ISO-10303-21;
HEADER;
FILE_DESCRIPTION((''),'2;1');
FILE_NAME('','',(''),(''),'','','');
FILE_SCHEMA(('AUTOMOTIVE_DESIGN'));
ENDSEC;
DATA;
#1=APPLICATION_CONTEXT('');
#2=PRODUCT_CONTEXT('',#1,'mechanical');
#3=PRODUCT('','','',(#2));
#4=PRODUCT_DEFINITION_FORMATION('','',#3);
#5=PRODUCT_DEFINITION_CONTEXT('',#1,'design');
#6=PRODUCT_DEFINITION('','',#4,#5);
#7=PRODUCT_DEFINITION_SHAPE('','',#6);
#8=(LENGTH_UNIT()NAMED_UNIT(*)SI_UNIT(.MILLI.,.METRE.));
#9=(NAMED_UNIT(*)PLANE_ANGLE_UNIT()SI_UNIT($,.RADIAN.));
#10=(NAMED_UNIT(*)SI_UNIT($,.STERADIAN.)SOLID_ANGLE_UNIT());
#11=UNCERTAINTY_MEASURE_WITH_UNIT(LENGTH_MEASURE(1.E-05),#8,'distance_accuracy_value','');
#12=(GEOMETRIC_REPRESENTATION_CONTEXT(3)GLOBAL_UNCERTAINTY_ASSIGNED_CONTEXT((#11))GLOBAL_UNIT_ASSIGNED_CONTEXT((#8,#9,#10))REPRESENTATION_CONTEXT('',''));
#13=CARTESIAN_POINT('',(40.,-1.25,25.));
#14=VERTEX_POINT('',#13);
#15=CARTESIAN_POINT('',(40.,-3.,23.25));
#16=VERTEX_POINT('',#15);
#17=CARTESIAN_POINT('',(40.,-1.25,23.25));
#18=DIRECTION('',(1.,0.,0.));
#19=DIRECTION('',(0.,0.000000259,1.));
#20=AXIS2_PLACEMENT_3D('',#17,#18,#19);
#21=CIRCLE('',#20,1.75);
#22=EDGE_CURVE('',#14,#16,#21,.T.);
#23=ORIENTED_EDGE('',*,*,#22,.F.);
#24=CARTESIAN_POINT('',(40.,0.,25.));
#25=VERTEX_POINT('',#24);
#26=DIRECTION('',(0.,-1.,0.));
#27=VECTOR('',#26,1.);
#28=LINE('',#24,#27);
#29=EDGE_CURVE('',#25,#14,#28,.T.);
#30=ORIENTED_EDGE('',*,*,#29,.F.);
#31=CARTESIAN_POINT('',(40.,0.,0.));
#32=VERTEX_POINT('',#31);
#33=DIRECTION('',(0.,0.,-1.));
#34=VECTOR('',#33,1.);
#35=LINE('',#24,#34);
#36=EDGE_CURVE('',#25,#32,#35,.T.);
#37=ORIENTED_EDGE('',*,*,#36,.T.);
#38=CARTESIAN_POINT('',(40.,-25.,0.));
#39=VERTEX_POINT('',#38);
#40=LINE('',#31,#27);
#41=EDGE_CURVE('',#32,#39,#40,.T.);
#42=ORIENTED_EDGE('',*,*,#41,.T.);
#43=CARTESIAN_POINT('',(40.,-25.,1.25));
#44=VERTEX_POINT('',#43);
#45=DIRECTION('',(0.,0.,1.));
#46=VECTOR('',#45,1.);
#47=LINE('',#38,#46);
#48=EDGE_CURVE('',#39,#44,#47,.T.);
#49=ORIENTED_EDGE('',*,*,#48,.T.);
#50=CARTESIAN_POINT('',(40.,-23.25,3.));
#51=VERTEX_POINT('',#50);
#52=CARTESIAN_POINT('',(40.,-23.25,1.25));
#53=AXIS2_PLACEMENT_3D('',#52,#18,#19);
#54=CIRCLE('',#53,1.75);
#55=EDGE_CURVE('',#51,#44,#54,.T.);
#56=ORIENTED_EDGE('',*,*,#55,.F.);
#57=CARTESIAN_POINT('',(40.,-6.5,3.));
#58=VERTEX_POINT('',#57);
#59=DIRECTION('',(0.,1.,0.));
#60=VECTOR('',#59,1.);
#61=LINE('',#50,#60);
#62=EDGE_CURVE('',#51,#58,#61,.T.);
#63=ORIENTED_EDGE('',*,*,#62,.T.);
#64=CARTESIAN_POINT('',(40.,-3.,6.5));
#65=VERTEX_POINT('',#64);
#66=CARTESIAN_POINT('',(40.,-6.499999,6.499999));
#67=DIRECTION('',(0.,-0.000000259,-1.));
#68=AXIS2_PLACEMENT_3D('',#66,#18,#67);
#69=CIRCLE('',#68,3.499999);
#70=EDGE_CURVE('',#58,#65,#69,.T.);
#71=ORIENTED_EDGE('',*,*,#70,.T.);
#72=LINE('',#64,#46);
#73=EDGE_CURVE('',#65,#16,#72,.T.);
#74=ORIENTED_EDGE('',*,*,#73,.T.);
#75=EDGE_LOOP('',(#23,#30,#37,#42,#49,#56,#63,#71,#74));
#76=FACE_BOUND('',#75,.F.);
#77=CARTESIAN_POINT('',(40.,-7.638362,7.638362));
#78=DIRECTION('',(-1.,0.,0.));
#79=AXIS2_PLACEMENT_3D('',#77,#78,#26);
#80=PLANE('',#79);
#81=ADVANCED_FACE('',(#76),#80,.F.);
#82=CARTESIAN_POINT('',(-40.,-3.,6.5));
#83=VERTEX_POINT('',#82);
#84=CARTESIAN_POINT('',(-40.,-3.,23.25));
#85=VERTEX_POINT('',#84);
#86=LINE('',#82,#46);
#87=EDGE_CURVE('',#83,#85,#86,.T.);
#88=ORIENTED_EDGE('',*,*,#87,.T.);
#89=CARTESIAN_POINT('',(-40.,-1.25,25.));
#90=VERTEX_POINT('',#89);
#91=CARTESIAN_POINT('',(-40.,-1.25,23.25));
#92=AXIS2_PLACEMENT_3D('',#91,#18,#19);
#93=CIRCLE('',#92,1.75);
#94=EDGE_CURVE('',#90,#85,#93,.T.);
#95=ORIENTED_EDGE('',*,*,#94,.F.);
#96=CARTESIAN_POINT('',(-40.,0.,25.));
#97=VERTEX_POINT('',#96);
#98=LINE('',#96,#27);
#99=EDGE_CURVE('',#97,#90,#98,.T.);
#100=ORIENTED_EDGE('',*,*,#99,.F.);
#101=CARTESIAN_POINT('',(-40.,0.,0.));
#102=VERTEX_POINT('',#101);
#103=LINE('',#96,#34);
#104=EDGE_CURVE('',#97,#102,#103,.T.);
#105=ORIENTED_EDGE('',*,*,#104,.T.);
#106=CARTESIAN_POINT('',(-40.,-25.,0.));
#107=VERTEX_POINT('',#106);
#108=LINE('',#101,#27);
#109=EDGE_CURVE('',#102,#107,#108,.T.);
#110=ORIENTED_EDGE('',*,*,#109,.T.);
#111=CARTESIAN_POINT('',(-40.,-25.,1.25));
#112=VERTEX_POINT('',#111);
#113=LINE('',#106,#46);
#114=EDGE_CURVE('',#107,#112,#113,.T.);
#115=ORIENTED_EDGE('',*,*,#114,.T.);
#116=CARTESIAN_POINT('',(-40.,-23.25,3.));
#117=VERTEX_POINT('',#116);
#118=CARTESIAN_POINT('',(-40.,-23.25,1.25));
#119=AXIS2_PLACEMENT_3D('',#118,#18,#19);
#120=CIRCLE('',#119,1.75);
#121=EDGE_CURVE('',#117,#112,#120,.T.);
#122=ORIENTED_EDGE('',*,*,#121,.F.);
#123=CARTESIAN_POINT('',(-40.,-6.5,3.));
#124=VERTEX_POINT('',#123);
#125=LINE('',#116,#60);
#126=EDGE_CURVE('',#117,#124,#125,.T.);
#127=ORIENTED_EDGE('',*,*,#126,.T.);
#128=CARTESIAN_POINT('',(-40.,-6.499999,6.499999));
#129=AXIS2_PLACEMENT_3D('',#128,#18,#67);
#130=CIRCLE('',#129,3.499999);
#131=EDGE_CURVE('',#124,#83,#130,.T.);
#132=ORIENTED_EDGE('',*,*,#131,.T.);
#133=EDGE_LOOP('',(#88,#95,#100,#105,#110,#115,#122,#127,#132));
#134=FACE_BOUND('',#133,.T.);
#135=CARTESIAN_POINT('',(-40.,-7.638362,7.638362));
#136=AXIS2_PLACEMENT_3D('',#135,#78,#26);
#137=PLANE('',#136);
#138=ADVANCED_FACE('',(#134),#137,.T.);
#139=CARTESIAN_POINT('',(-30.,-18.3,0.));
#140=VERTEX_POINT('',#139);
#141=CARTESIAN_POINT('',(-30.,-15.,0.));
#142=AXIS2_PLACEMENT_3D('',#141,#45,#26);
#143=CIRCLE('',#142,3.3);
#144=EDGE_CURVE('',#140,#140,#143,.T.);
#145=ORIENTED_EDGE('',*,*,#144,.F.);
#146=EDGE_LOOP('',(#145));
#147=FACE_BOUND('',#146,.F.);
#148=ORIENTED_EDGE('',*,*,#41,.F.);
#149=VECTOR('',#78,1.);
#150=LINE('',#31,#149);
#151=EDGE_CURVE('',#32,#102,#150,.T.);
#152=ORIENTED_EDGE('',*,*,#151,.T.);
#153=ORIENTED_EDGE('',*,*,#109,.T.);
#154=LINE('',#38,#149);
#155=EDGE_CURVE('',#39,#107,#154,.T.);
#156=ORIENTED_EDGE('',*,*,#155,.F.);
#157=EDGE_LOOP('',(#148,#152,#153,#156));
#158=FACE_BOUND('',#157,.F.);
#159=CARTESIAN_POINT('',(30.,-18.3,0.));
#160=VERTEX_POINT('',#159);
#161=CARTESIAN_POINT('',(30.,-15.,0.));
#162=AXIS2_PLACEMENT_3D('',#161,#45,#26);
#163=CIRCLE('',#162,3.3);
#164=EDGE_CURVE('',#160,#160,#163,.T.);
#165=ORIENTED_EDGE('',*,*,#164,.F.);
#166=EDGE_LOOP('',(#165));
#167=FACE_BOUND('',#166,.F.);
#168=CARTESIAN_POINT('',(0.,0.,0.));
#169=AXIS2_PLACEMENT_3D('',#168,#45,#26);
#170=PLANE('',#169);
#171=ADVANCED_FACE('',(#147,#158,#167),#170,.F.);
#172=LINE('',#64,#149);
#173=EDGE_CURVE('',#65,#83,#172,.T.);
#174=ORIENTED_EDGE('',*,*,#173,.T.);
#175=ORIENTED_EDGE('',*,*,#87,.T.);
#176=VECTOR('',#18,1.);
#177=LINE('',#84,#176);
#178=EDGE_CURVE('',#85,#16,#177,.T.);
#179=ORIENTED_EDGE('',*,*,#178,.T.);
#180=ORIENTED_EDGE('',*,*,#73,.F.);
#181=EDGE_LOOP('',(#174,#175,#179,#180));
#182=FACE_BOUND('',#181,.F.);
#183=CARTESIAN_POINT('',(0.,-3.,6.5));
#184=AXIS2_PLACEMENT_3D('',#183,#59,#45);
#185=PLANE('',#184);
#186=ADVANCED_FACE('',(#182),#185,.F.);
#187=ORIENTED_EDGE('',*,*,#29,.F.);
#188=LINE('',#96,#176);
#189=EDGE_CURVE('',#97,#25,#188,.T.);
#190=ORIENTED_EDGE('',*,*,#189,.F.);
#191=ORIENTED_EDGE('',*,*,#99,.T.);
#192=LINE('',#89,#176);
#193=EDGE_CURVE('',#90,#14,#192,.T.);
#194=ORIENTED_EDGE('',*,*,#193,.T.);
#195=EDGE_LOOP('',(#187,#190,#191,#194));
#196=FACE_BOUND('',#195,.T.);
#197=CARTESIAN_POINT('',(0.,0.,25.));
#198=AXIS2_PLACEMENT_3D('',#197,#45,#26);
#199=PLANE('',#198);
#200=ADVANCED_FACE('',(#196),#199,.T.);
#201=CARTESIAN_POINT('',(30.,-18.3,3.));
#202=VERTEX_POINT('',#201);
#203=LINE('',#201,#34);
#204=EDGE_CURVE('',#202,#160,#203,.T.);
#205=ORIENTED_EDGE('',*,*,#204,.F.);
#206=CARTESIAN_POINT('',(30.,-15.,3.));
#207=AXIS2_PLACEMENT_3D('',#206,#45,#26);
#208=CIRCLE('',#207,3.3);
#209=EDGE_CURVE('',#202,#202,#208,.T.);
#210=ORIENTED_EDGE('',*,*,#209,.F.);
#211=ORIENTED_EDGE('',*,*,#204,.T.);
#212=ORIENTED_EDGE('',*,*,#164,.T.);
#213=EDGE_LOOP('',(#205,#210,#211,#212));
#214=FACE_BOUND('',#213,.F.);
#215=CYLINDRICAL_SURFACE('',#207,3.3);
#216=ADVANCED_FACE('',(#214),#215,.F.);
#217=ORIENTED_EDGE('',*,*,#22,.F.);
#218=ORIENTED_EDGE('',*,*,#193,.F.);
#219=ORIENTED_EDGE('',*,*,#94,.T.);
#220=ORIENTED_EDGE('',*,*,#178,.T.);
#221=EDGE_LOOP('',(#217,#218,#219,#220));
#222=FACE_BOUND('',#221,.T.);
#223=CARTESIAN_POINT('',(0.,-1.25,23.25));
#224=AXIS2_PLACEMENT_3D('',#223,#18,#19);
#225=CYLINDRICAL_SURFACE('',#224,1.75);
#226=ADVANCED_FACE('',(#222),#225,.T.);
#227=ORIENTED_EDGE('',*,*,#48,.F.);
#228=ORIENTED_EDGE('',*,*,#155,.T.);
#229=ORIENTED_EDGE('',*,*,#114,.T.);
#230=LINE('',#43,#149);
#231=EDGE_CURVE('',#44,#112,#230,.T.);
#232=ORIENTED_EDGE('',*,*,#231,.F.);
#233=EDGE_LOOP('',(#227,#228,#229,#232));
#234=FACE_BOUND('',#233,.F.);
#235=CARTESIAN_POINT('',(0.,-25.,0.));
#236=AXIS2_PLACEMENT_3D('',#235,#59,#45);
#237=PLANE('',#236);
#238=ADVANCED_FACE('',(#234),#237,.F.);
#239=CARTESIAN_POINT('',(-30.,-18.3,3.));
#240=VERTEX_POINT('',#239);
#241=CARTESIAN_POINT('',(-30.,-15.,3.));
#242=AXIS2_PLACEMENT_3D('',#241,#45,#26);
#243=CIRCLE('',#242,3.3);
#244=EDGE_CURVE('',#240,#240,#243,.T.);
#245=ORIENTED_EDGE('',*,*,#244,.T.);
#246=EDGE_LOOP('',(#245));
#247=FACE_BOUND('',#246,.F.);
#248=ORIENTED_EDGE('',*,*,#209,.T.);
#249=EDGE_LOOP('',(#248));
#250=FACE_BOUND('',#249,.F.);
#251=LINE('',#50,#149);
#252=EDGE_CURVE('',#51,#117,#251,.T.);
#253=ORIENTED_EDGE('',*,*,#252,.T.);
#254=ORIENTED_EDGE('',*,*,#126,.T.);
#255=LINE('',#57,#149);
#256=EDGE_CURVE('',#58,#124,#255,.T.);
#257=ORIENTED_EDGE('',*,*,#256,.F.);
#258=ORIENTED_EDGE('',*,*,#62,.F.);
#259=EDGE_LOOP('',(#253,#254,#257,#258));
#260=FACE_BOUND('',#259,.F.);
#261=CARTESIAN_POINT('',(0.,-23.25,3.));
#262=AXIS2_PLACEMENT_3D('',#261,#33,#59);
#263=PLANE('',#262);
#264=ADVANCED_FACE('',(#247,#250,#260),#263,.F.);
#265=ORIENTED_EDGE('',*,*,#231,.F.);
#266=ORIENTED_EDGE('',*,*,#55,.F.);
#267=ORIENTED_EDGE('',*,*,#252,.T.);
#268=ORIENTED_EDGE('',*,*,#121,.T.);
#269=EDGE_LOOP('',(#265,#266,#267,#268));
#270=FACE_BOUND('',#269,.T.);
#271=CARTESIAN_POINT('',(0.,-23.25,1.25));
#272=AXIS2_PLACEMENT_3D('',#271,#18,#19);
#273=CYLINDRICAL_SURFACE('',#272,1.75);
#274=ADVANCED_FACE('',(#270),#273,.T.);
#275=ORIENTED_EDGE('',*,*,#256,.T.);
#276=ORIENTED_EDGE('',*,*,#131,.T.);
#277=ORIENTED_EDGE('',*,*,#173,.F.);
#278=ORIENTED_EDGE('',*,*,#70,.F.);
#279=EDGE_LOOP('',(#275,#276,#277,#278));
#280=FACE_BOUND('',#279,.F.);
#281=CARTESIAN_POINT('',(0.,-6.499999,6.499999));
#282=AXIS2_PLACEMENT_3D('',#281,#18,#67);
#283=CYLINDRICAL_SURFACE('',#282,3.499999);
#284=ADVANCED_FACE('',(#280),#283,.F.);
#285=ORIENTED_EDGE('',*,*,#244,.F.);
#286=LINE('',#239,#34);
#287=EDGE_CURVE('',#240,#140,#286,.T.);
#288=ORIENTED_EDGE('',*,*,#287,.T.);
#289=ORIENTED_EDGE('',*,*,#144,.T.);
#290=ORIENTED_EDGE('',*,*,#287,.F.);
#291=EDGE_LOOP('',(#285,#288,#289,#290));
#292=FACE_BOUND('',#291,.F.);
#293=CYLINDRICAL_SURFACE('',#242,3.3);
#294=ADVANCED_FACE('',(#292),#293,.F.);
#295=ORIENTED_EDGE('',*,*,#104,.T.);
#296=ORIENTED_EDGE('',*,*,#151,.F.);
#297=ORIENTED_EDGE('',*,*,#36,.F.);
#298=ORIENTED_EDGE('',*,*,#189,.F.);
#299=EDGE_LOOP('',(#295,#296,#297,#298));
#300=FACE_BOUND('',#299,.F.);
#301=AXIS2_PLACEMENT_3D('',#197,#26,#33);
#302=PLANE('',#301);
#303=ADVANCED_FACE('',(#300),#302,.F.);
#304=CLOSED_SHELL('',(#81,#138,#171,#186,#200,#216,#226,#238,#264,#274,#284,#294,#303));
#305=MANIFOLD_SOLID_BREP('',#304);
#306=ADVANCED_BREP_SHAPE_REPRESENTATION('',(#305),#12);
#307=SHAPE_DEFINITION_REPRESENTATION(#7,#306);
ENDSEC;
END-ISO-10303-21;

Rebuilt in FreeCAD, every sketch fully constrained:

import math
import FreeCAD as App
import Part
import Sketcher

doc = App.newDocument("Part")
body = doc.addObject("PartDesign::Body", "Body")

sketch1 = body.newObject("Sketcher::SketchObject", "Sketch")
sketch1.AttachmentSupport = (doc.getObject("YZ_Plane"), [""])
sketch1.MapMode = "FlatFace"
sketch1.addGeometry([
    Part.LineSegment(App.Vector(0, 0, 0), App.Vector(0, 25, 0)),
    Part.LineSegment(App.Vector(0, 25, 0), App.Vector(-1.25, 25, 0)),
    Part.ArcOfCircle(Part.Circle(App.Vector(-1.25, 23.25, 0), App.Vector(0, 0, 1), 1.75), math.radians(89.999985), math.radians(180.000015)),
    Part.LineSegment(App.Vector(-3, 23.25, 0), App.Vector(-3, 6.5, 0)),
    Part.ArcOfCircle(Part.Circle(App.Vector(-6.499999, 6.499999, 0), App.Vector(0, 0, 1), 3.499999), math.radians(-90.000015), math.radians(0.000015)),
    Part.LineSegment(App.Vector(-6.5, 3, 0), App.Vector(-23.25, 3, 0)),
    Part.ArcOfCircle(Part.Circle(App.Vector(-23.25, 1.25, 0), App.Vector(0, 0, 1), 1.75), math.radians(89.999985), math.radians(180.000015)),
    Part.LineSegment(App.Vector(-25, 1.25, 0), App.Vector(-25, 0, 0)),
    Part.LineSegment(App.Vector(-25, 0, 0), App.Vector(0, 0, 0)),
], False)
sketch1.addConstraint([
    Sketcher.Constraint("Coincident", 0, 2, 1, 1),
    Sketcher.Constraint("Tangent", 1, 2, 2, 1),
    Sketcher.Constraint("Tangent", 2, 2, 3, 1),
    Sketcher.Constraint("Tangent", 3, 2, 4, 2),
    Sketcher.Constraint("Tangent", 4, 1, 5, 1),
    Sketcher.Constraint("Tangent", 5, 2, 6, 1),
    Sketcher.Constraint("Tangent", 6, 2, 7, 1),
    Sketcher.Constraint("Coincident", 7, 2, 8, 1),
    Sketcher.Constraint("Coincident", 8, 2, 0, 1),
    Sketcher.Constraint("Vertical", 0),
    Sketcher.Constraint("Horizontal", 1),
    Sketcher.Constraint("Vertical", 3),
    Sketcher.Constraint("Horizontal", 5),
    Sketcher.Constraint("Vertical", 7),
    Sketcher.Constraint("Horizontal", 8),
    Sketcher.Constraint("Coincident", 8, 2, -1, 1),
    Sketcher.Constraint("Equal", 2, 6),
    Sketcher.Constraint("Equal", 8, 0),
    Sketcher.Constraint("Equal", 5, 3),
    Sketcher.Constraint("Radius", 4, 3.499999),
    Sketcher.Constraint("DistanceX", 8, 1, 8, 2, 25.0),
    Sketcher.Constraint("Radius", 2, 1.75),
    Sketcher.Constraint("DistanceX", 2, 2, -1, 1, 3.0),
])
pad1 = body.newObject("PartDesign::Pad", "Pad")
pad1.Profile = sketch1
pad1.Length = 80
pad1.Midplane = True

sketch2 = body.newObject("Sketcher::SketchObject", "Sketch001")
sketch2.AttachmentSupport = (doc.getObject("XY_Plane"), [""])
sketch2.MapMode = "FlatFace"
sketch2.AttachmentOffset = App.Placement(App.Vector(0, 0, 3), App.Rotation())
sketch2.addGeometry([
    Part.Circle(App.Vector(30, -15, 0), App.Vector(0, 0, 1), 3.3),
    Part.Circle(App.Vector(-30, -15, 0), App.Vector(0, 0, 1), 3.3),
], False)
sketch2.addConstraint([
    Sketcher.Constraint("Equal", 0, 1),
    Sketcher.Constraint("Symmetric", 0, 3, 1, 3, -2),
    Sketcher.Constraint("Diameter", 0, 6.6),
    Sketcher.Constraint("DistanceX", -1, 1, 0, 3, 30.0),
    Sketcher.Constraint("DistanceY", 0, 3, -1, 1, 15.0),
])
pocket1 = body.newObject("PartDesign::Pocket", "Pocket")
pocket1.Profile = sketch2
pocket1.Type = "ThroughAll"

doc.recompute()
